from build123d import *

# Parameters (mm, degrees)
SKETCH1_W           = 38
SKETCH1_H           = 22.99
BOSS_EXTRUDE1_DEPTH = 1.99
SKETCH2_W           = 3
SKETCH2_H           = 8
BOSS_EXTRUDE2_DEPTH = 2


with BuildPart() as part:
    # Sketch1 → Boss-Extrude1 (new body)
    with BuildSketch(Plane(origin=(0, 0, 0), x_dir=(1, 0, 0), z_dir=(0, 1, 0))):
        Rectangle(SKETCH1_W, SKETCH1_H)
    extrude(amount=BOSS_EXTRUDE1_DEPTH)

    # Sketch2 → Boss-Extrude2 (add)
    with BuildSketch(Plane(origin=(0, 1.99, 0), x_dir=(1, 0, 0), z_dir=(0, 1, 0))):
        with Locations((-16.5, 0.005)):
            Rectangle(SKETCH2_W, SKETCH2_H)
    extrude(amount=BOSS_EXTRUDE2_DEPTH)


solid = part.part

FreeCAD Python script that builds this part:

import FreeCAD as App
import Part
import Sketcher


def add_polygon(sketch, points):
    """Adds a closed chain of lines whose ends are joined by coincident constraints."""
    first, n = sketch.GeometryCount, len(points)
    for a, b in zip(points, points[1:] + points[:1]):
        sketch.addGeometry(Part.LineSegment(App.Vector(*a, 0), App.Vector(*b, 0)), False)
    for i in range(n):
        sketch.addConstraint(Sketcher.Constraint("Coincident", first + i, 2, first + (i + 1) % n, 1))

doc = App.newDocument("Part")
body = doc.addObject("PartDesign::Body", "Body")

# Sketch on XZ plane
sketch1 = body.newObject("Sketcher::SketchObject", "Sketch")
sketch1.AttachmentSupport = (doc.getObject("XZ_Plane"), [""])
sketch1.MapMode = "FlatFace"
add_polygon(sketch1, [(-19, -11), (-19, 11), (19, 11), (19, -11)])  # lines 0-3
sketch1.addConstraint([
    Sketcher.Constraint("Vertical", 0),
    Sketcher.Constraint("Horizontal", 1),
    Sketcher.Constraint("Vertical", 2),
    Sketcher.Constraint("Horizontal", 3),
    Sketcher.Constraint("Symmetric", 0, 2, 2, 2, -1, 1),
    Sketcher.Constraint("DistanceX", 1, 1, 1, 2, 38.0),
    Sketcher.Constraint("DistanceY", 0, 1, 0, 2, 22.99),
])
pad1 = body.newObject("PartDesign::Pad", "Pad")
pad1.Profile = sketch1
pad1.Length = 1.99
pad1.Reversed = True

# Sketch on XZ plane
sketch2 = body.newObject("Sketcher::SketchObject", "Sketch001")
sketch2.AttachmentSupport = (doc.getObject("XZ_Plane"), [""])
sketch2.MapMode = "FlatFace"
sketch2.AttachmentOffset = App.Placement(App.Vector(0, 0, -1.99), App.Rotation())
add_polygon(sketch2, [(-18, -4), (-18, 4), (-15, 4), (-15, -4)])  # lines 0-3
sketch2.addConstraint([
    Sketcher.Constraint("Vertical", 0),
    Sketcher.Constraint("Horizontal", 1),
    Sketcher.Constraint("Vertical", 2),
    Sketcher.Constraint("Horizontal", 3),
    Sketcher.Constraint("DistanceX", 1, 1, 1, 2, 3.0),
    Sketcher.Constraint("DistanceY", 0, 1, 0, 2, 8.0),
    Sketcher.Constraint("DistanceX", 0, 2, -1, 1, 18.0),
    Sketcher.Constraint("DistanceY", -1, 1, 0, 2, 3.995),
])
pad2 = body.newObject("PartDesign::Pad", "Pad001")
pad2.Profile = sketch2
pad2.Length = 2
pad2.Reversed = True

doc.recompute()
